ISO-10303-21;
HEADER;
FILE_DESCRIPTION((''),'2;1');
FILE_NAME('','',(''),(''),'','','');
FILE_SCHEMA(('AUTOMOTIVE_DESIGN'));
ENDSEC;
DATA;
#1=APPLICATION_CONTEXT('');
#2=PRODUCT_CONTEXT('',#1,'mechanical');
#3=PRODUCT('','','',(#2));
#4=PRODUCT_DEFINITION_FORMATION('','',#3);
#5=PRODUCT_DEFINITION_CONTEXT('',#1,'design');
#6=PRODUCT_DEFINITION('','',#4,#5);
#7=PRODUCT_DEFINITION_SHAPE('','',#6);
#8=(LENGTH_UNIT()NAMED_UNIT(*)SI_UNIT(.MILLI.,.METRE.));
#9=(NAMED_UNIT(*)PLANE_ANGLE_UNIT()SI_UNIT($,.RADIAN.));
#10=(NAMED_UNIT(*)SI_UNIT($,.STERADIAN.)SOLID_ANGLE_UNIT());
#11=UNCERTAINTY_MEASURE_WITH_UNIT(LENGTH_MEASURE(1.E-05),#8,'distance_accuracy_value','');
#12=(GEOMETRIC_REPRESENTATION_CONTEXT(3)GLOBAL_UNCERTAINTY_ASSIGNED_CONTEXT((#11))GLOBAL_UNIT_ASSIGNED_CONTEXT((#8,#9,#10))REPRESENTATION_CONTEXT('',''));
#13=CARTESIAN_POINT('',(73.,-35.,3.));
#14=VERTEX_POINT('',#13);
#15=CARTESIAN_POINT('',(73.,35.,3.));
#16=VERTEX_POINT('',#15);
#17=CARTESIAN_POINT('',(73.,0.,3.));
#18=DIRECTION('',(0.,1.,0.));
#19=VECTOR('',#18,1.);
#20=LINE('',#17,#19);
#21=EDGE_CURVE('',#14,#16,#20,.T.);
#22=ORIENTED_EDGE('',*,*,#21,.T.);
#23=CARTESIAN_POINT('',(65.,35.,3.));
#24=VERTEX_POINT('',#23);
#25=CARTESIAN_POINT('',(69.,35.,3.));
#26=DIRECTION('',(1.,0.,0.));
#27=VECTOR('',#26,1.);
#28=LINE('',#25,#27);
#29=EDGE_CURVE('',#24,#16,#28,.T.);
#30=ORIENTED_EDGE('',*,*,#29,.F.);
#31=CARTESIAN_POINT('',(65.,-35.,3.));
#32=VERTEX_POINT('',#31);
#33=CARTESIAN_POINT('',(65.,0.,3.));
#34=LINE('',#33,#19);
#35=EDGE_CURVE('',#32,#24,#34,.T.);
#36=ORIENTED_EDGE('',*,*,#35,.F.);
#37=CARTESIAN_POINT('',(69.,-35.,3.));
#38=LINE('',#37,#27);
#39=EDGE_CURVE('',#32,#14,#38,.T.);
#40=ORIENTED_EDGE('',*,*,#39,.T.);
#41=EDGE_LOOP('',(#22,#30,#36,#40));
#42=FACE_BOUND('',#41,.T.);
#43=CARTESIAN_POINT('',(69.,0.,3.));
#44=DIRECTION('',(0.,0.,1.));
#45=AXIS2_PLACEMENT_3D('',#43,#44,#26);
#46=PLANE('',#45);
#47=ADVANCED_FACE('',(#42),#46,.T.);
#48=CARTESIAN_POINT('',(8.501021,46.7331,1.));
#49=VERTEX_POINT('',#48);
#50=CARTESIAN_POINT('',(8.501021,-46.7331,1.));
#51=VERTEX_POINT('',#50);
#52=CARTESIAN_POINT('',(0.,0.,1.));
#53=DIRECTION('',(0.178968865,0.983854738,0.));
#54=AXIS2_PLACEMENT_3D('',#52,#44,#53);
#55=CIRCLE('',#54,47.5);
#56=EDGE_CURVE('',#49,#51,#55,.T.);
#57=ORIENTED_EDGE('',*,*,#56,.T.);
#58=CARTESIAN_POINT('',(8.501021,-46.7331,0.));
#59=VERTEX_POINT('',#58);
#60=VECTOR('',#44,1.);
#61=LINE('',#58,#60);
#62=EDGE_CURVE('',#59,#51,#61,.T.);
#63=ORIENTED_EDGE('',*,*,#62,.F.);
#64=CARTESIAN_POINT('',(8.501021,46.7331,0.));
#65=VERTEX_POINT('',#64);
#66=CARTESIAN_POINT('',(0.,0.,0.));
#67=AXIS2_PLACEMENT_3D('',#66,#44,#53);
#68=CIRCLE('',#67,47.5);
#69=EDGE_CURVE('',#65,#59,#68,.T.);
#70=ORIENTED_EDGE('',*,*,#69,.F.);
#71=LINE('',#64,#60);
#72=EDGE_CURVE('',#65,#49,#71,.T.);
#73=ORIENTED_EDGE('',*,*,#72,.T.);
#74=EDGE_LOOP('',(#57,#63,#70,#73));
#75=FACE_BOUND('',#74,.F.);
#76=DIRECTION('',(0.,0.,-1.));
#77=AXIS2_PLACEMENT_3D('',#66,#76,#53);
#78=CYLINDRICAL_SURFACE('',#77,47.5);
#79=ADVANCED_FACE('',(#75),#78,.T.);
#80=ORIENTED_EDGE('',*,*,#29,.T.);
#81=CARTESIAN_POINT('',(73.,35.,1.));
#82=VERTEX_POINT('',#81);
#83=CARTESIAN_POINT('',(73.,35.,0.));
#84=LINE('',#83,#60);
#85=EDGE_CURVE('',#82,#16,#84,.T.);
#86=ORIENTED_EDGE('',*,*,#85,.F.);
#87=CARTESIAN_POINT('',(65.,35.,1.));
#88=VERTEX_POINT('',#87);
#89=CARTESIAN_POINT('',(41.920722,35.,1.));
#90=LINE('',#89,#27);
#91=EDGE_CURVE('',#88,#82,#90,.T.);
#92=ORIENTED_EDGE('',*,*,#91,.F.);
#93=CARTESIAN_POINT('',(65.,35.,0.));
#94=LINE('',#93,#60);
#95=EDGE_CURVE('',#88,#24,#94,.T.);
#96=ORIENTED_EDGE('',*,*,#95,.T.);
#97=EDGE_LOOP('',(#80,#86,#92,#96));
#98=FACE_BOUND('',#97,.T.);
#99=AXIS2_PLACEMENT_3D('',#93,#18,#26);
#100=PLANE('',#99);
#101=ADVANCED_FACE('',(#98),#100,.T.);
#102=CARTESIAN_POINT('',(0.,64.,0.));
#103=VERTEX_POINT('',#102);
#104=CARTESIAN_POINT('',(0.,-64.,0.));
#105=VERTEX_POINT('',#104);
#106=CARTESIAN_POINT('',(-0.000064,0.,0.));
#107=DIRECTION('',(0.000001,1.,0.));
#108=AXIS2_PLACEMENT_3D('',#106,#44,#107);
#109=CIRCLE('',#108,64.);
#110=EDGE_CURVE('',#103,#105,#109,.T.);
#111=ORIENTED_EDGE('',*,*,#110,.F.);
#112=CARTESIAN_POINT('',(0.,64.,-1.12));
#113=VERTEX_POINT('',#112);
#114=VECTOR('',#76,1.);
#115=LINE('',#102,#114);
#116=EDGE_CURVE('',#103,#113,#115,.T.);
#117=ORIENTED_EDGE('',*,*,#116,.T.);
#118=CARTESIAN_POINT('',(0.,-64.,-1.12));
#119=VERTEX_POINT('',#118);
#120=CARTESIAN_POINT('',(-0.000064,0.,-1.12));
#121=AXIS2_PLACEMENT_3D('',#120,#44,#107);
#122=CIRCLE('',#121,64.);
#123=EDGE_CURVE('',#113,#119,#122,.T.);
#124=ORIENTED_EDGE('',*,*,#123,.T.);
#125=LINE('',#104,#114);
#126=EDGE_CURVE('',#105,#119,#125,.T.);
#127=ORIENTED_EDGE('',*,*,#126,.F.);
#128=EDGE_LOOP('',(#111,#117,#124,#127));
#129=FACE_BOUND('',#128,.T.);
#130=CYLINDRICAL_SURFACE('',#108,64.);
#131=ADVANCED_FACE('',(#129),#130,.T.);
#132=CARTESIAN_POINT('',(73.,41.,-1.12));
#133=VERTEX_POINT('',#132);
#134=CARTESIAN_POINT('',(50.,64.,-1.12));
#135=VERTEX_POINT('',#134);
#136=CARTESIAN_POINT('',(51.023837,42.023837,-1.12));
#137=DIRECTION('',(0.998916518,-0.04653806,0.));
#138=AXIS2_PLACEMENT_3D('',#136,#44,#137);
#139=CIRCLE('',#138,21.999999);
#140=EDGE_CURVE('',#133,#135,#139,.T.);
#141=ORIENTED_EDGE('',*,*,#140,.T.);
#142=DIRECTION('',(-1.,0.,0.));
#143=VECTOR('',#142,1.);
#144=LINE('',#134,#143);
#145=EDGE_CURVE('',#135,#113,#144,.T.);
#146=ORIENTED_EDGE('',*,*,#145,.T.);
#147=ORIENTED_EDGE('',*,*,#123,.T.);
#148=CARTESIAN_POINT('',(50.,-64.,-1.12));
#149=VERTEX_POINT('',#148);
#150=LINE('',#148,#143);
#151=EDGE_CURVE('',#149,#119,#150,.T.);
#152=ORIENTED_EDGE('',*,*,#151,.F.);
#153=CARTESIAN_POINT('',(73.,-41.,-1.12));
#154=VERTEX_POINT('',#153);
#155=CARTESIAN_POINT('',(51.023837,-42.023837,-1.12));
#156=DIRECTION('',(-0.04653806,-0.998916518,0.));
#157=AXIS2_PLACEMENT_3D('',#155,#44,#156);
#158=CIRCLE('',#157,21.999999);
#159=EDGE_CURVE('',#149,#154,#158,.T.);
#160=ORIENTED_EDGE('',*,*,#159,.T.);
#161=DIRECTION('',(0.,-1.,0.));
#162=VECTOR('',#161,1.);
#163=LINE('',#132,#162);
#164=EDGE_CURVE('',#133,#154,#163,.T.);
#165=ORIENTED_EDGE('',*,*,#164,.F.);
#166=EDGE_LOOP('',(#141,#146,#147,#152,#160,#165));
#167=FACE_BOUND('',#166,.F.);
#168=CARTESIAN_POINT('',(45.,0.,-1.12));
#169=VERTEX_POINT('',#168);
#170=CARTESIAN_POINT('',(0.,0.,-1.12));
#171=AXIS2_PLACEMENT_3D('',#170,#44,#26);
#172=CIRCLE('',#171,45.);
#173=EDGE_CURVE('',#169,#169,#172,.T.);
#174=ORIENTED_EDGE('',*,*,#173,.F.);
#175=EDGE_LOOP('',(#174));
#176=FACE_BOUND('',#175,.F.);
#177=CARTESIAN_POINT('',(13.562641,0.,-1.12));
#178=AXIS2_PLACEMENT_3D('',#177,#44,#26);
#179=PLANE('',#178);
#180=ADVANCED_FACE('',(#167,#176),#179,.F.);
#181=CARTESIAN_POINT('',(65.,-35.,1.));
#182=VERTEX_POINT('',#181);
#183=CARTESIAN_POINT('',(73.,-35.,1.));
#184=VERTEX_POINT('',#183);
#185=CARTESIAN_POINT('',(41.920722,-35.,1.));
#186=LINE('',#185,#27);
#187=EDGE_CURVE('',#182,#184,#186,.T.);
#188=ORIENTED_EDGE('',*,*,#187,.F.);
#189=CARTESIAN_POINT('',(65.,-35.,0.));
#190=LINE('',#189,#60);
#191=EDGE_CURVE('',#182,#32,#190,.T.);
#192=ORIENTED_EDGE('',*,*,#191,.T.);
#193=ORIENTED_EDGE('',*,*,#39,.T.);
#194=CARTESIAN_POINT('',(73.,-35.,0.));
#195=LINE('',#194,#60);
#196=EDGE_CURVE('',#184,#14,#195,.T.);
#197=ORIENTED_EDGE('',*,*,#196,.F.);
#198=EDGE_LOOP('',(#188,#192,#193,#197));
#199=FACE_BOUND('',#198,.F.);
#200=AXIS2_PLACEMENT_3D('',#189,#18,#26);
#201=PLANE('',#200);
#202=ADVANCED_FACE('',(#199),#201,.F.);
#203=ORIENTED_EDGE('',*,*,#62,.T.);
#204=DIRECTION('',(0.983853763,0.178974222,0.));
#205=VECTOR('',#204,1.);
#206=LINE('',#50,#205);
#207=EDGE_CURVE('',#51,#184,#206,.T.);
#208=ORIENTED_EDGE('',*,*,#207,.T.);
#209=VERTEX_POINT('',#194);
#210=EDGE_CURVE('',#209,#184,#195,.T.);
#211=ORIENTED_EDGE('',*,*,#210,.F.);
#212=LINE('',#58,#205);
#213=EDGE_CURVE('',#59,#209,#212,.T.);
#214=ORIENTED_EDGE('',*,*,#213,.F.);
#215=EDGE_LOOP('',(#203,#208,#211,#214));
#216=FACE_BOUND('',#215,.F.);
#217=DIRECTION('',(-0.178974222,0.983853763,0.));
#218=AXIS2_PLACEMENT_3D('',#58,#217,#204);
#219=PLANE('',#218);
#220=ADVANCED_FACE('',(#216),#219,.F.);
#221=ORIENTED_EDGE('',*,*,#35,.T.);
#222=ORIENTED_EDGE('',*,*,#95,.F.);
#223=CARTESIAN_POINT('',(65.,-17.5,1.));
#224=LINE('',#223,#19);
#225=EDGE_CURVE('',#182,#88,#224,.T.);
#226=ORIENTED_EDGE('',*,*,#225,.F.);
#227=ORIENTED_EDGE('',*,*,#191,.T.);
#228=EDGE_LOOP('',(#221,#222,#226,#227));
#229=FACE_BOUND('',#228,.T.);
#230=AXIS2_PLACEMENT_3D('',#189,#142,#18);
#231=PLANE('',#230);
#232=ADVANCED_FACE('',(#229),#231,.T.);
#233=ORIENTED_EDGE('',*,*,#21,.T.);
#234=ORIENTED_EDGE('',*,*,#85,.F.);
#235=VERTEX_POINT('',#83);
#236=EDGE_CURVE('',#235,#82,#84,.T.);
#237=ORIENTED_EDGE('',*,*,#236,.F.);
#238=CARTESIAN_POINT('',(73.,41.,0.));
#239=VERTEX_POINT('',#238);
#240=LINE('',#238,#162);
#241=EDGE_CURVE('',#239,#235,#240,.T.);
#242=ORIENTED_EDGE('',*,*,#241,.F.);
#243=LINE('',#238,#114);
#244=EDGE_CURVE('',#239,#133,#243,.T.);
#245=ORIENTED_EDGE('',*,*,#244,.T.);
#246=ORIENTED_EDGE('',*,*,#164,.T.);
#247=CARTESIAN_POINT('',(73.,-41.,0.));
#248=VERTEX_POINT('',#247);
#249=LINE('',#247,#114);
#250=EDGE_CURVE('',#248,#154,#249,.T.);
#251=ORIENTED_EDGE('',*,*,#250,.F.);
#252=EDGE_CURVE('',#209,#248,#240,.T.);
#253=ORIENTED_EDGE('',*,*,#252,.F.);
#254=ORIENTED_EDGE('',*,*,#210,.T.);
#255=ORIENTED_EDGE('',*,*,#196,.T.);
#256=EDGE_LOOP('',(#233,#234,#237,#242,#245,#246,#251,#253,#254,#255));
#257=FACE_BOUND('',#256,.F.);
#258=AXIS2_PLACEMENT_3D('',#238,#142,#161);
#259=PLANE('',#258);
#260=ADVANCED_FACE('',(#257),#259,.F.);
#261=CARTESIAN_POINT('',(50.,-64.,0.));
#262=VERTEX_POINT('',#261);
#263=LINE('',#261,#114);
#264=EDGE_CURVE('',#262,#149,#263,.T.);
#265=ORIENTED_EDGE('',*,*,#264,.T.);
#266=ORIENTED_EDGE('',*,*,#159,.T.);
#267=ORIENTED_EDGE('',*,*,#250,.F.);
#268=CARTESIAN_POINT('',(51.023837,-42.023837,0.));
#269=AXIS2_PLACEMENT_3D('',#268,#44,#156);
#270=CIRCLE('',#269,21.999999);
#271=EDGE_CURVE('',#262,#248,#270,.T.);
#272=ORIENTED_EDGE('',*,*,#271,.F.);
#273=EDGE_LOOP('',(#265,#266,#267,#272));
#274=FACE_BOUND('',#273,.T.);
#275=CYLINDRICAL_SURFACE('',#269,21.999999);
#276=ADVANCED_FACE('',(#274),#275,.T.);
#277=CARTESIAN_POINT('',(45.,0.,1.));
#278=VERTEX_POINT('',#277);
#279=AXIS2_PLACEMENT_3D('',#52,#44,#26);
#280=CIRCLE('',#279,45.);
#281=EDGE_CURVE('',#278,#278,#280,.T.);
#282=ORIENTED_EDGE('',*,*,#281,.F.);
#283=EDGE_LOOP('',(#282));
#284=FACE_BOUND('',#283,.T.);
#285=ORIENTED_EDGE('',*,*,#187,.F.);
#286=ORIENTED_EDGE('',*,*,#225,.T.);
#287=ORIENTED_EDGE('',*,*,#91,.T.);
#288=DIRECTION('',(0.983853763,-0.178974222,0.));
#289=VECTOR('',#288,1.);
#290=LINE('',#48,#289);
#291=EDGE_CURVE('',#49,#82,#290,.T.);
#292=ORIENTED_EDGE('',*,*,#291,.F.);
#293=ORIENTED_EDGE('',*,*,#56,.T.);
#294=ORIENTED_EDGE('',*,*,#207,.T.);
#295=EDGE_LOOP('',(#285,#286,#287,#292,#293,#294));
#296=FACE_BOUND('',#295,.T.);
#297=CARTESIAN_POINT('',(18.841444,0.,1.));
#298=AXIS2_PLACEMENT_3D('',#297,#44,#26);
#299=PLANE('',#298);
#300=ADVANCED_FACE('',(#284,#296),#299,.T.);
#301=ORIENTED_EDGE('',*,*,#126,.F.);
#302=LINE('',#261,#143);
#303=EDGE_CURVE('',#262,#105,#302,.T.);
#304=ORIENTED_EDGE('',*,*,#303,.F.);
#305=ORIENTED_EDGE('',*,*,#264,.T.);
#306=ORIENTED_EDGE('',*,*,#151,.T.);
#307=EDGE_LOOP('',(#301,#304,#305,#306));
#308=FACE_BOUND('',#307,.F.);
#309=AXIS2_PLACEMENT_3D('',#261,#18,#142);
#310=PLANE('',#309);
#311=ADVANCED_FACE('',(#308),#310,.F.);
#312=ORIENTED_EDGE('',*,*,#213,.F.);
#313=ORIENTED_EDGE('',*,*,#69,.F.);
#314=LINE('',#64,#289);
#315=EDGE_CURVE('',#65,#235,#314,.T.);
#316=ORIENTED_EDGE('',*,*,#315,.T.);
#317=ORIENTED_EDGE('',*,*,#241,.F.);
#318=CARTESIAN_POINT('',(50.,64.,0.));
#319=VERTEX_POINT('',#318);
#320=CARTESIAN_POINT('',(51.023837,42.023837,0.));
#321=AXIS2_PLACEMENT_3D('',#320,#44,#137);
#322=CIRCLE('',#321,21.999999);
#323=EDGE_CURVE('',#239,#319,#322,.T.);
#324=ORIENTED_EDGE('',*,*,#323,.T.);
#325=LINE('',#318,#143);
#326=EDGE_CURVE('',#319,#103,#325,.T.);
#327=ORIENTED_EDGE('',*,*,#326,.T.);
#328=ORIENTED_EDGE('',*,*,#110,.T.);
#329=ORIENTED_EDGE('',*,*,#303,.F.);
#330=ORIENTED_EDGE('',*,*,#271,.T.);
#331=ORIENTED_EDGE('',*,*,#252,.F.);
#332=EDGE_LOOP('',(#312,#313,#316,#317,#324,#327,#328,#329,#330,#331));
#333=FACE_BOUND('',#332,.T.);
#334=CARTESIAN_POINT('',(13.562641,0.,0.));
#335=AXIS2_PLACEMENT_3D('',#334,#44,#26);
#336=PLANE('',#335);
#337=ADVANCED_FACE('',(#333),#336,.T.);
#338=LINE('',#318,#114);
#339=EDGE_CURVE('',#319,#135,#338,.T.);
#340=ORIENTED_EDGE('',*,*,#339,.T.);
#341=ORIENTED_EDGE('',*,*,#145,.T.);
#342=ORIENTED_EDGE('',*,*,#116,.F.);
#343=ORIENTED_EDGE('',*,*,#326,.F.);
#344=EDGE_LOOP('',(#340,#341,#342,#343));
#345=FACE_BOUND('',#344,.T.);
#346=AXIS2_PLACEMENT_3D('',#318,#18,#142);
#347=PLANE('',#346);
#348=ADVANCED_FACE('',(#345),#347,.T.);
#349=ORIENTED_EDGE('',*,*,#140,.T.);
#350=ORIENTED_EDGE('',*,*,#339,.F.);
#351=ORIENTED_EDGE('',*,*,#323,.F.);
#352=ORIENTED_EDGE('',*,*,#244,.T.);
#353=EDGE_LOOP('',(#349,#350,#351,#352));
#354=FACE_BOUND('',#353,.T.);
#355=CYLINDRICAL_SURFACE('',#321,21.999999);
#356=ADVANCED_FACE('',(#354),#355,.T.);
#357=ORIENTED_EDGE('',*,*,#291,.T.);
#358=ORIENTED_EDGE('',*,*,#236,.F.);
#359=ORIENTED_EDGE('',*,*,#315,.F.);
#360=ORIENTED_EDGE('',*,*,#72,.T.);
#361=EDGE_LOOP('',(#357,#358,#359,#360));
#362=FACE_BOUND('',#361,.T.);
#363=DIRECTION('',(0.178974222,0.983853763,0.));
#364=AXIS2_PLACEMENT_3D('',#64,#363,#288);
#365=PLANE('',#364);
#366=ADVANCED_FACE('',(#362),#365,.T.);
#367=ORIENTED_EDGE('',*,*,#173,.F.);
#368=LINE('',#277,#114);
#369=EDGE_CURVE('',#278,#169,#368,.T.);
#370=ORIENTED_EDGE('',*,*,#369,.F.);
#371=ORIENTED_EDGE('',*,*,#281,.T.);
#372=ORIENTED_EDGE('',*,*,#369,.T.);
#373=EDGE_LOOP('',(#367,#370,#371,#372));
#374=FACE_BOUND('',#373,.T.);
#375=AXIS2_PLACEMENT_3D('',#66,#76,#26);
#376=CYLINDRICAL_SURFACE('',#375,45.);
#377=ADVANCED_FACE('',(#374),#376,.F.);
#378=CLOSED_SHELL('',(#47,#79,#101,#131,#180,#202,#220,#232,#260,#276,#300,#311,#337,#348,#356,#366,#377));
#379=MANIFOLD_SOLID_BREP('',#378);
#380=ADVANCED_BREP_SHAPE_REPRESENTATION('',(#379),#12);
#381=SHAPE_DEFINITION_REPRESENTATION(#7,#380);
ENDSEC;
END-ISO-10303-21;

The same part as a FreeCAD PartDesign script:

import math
import FreeCAD as App
import Part
import Sketcher

V = App.Vector
Q = App.Units.Quantity


def add_polygon(sketch, points):
    """Adds a closed chain of lines whose ends are joined by coincident constraints."""
    first, n = sketch.GeometryCount, len(points)
    for a, b in zip(points, points[1:] + points[:1]):
        sketch.addGeometry(Part.LineSegment(App.Vector(*a, 0), App.Vector(*b, 0)), False)
    for i in range(n):
        sketch.addConstraint(Sketcher.Constraint("Coincident", first + i, 2, first + (i + 1) % n, 1))

doc = App.newDocument("Part")
params = doc.addObject("Spreadsheet::Sheet", "Params")
for row, (alias, value) in enumerate([
    ("sketch1_diameter", "90 mm"),
    ("sketch1_radius", "64 mm"),
    ("sketch1_radius2", "21.999999 mm"),
    ("sketch1_radius3", "21.999999 mm"),
    ("sketch1_width", "50 mm"),
    ("pad1_length", "1.12 mm"),
    ("sketch2_width", "8 mm"),
    ("sketch2_height", "70 mm"),
    ("pad2_length", "3 mm"),
    ("sketch3_diameter", "90 mm"),
    ("sketch3_radius", "47.5 mm"),
    ("sketch3_height", "70 mm"),
    ("pad3_length", "1 mm"),
], start=1):
    params.set(f"A{row}", alias)
    params.set(f"B{row}", "=" + value)
    params.setAlias(f"B{row}", alias)

body = doc.addObject("PartDesign::Body", "Body")

sketch1 = body.newObject("Sketcher::SketchObject", "Sketch")
sketch1.AttachmentSupport = (doc.getObject("XY_Plane"), [""])
sketch1.MapMode = "FlatFace"
sketch1.addGeometry(Part.LineSegment(V(50, 64, 0), V(0, 64, 0)), False)
sketch1.addGeometry(Part.ArcOfCircle(Part.Circle(V(-0.000064, 0, 0), V(0, 0, 1), 64), math.radians(89.999943), math.radians(270.000057)), False)
sketch1.addGeometry(Part.LineSegment(V(0, -64, 0), V(50, -64, 0)), False)
sketch1.addGeometry(Part.ArcOfCircle(Part.Circle(V(51.023837, -42.023837, 0), V(0, 0, 1), 21.999999), math.radians(-92.667398), math.radians(2.667398)), False)
sketch1.addGeometry(Part.LineSegment(V(73, -41, 0), V(73, 41, 0)), False)
sketch1.addGeometry(Part.ArcOfCircle(Part.Circle(V(51.023837, 42.023837, 0), V(0, 0, 1), 21.999999), math.radians(-2.667398), math.radians(92.667398)), False)
sketch1.addGeometry(Part.Circle(V(0, 0, 0), V(0, 0, 1), 45), False)
sketch1.addConstraint(Sketcher.Constraint("Coincident", 0, 2, 1, 1))
sketch1.addConstraint(Sketcher.Constraint("Coincident", 1, 2, 2, 1))
sketch1.addConstraint(Sketcher.Constraint("Coincident", 2, 2, 3, 1))
sketch1.addConstraint(Sketcher.Constraint("Coincident", 3, 2, 4, 1))
sketch1.addConstraint(Sketcher.Constraint("Coincident", 4, 2, 5, 1))
sketch1.addConstraint(Sketcher.Constraint("Coincident", 5, 2, 0, 1))
sketch1.addConstraint(Sketcher.Constraint("Horizontal", 0))
sketch1.addConstraint(Sketcher.Constraint("Horizontal", 2))
sketch1.addConstraint(Sketcher.Constraint("Vertical", 4))
sketch1.addConstraint(Sketcher.Constraint("Coincident", 6, 3, -1, 1))
sketch1.addConstraint(Sketcher.Constraint("PointOnObject", 1, 3, -1))
sketch1.addConstraint(Sketcher.Constraint("PointOnObject", 0, 2, -2))
sketch1.addConstraint(Sketcher.Constraint("PointOnObject", 1, 2, -2))
sketch1.addConstraint(Sketcher.Constraint("Diameter", 6, Q("90 mm")))
sketch1.addConstraint(Sketcher.Constraint("Radius", 1, Q("64 mm")))
sketch1.addConstraint(Sketcher.Constraint("Radius", 3, Q("21.999999 mm")))
sketch1.addConstraint(Sketcher.Constraint("Radius", 5, Q("21.999999 mm")))
sketch1.addConstraint(Sketcher.Constraint("DistanceX", 0, 2, 0, 1, Q("50 mm")))
sketch1.addConstraint(Sketcher.Constraint("DistanceX", 2, 1, 2, 2, Q("50 mm")))
sketch1.addConstraint(Sketcher.Constraint("DistanceY", 4, 1, 4, 2, Q("82 mm")))
sketch1.addConstraint(Sketcher.Constraint("DistanceX", -1, 1, 3, 2, Q("73 mm")))
sketch1.addConstraint(Sketcher.Constraint("DistanceY", 3, 2, -1, 1, Q("41 mm")))
sketch1.addConstraint(Sketcher.Constraint("DistanceX", 1, 3, 3, 3, Q("51.023901 mm")))
sketch1.setExpression("Constraints[13]", "Params.sketch1_diameter")
sketch1.setExpression("Constraints[14]", "Params.sketch1_radius")
sketch1.setExpression("Constraints[15]", "Params.sketch1_radius2")
sketch1.setExpression("Constraints[16]", "Params.sketch1_radius3")
sketch1.setExpression("Constraints[17]", "Params.sketch1_width")
pad1 = body.newObject("PartDesign::Pad", "Pad")
pad1.Profile = sketch1
pad1.setExpression("Length", "Params.pad1_length")
pad1.Reversed = True

sketch2 = body.newObject("Sketcher::SketchObject", "Sketch001")
sketch2.AttachmentSupport = (doc.getObject("XY_Plane"), [""])
sketch2.MapMode = "FlatFace"
add_polygon(sketch2, [(65, 35), (65, -35), (73, -35), (73, 35)])
sketch2.addConstraint(Sketcher.Constraint("Vertical", 0))
sketch2.addConstraint(Sketcher.Constraint("Horizontal", 1))
sketch2.addConstraint(Sketcher.Constraint("Vertical", 2))
sketch2.addConstraint(Sketcher.Constraint("Horizontal", 3))
sketch2.addConstraint(Sketcher.Constraint("DistanceX", 1, 1, 1, 2, Q("8 mm")))
sketch2.addConstraint(Sketcher.Constraint("DistanceY", 0, 2, 0, 1, Q("70 mm")))
sketch2.addConstraint(Sketcher.Constraint("DistanceX", -1, 1, 0, 2, Q("65 mm")))
sketch2.addConstraint(Sketcher.Constraint("DistanceY", 0, 2, -1, 1, Q("35 mm")))
sketch2.setExpression("Constraints[8]", "Params.sketch2_width")
sketch2.setExpression("Constraints[9]", "Params.sketch2_height")
pad2 = body.newObject("PartDesign::Pad", "Pad001")
pad2.Profile = sketch2
pad2.setExpression("Length", "Params.pad2_length")

sketch3 = body.newObject("Sketcher::SketchObject", "Sketch002")
sketch3.AttachmentSupport = (doc.getObject("XY_Plane"), [""])
sketch3.MapMode = "FlatFace"
sketch3.addGeometry(Part.ArcOfCircle(Part.Circle(V(0, 0, 0), V(0, 0, 1), 47), math.radians(80), math.radians(280)), False)
sketch3.addGeometry(Part.LineSegment(V(9, -47, 0), V(73, -35, 0)), False)
sketch3.addGeometry(Part.LineSegment(V(73, -35, 0), V(73, 35, 0)), False)
sketch3.addGeometry(Part.LineSegment(V(73, 35, 0), V(9, 47, 0)), False)
sketch3.addGeometry(Part.Circle(V(0, 0, 0), V(0, 0, 1), 45), False)
sketch3.addConstraint(Sketcher.Constraint("Coincident", 0, 2, 1, 1))
sketch3.addConstraint(Sketcher.Constraint("Coincident", 1, 2, 2, 1))
sketch3.addConstraint(Sketcher.Constraint("Coincident", 2, 2, 3, 1))
sketch3.addConstraint(Sketcher.Constraint("Coincident", 3, 2, 0, 1))
sketch3.addConstraint(Sketcher.Constraint("Vertical", 2))
sketch3.addConstraint(Sketcher.Constraint("Coincident", 0, 3, -1, 1))
sketch3.addConstraint(Sketcher.Constraint("Coincident", 4, 3, -1, 1))
sketch3.addConstraint(Sketcher.Constraint("Vertical", 0, 2, 3, 2))
sketch3.addConstraint(Sketcher.Constraint("Equal", 1, 3))
sketch3.addConstraint(Sketcher.Constraint("Diameter", 4, Q("90 mm")))
sketch3.addConstraint(Sketcher.Constraint("Radius", 0, Q("47.5 mm")))
sketch3.addConstraint(Sketcher.Constraint("DistanceY", 2, 1, 2, 2, Q("70 mm")))
sketch3.addConstraint(Sketcher.Constraint("DistanceX", -1, 1, 1, 2, Q("73 mm")))
sketch3.addConstraint(Sketcher.Constraint("DistanceY", 0, 2, -1, 1, Q("46.7331 mm")))
sketch3.setExpression("Constraints[9]", "Params.sketch3_diameter")
sketch3.setExpression("Constraints[10]", "Params.sketch3_radius")
sketch3.setExpression("Constraints[11]", "Params.sketch3_height")
pad3 = body.newObject("PartDesign::Pad", "Pad002")
pad3.Profile = sketch3
pad3.setExpression("Length", "Params.pad3_length")

doc.recompute()
